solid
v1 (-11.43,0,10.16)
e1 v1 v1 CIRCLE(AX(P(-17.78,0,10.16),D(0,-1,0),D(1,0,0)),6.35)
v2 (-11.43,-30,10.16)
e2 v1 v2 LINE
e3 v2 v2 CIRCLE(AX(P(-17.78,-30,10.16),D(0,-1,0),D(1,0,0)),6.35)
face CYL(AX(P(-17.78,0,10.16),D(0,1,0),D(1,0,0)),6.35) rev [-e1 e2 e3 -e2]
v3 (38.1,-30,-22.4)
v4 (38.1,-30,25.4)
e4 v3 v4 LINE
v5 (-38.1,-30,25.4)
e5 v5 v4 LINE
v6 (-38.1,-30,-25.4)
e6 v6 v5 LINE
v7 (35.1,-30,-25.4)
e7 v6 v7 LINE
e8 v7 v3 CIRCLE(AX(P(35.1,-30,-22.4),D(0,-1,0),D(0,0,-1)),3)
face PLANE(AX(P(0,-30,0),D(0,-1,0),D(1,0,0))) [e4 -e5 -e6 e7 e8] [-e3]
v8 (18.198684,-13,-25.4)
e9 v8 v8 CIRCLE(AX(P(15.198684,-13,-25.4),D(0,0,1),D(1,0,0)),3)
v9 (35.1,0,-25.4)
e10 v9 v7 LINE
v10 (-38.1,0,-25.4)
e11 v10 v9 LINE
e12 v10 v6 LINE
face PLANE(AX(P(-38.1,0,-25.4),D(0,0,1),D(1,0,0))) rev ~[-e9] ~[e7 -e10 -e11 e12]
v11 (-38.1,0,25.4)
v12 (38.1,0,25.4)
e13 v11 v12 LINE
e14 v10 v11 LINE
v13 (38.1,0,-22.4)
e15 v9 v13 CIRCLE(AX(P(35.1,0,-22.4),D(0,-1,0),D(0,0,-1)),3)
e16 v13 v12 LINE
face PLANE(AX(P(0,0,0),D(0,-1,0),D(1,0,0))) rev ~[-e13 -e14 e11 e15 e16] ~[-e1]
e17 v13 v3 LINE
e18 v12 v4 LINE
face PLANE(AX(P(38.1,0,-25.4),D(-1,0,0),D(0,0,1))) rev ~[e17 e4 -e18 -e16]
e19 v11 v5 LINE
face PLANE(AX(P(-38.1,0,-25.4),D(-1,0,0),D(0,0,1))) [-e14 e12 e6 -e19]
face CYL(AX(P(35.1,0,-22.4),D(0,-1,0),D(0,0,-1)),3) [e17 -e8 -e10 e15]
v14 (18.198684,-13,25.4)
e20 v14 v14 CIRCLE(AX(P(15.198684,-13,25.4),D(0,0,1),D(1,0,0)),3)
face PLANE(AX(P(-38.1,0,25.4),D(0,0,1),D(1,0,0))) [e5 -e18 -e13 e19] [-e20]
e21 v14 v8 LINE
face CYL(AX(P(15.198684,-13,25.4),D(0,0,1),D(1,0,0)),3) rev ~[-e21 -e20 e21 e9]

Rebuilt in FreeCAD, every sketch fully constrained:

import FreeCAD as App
import Part
import Sketcher
Q = App.Units.Quantity


def edges_at(feature, points):
    """Names of the edges that pass closest to the given points."""
    edges = feature.Shape.Edges
    near = lambda p: min(range(len(edges)), key=lambda i: edges[i].distToShape(Part.Vertex(*p))[0])
    return sorted({f"Edge{near(p) + 1}" for p in points})


def add_polygon(sketch, points):
    """Adds a closed chain of lines whose ends are joined by coincident constraints."""
    first, n = sketch.GeometryCount, len(points)
    for a, b in zip(points, points[1:] + points[:1]):
        sketch.addGeometry(Part.LineSegment(App.Vector(*a, 0), App.Vector(*b, 0)), False)
    for i in range(n):
        sketch.addConstraint(Sketcher.Constraint("Coincident", first + i, 2, first + (i + 1) % n, 1))

doc = App.newDocument("Part")
body = doc.addObject("PartDesign::Body", "Body")

# Sketch on XZ plane
sketch1 = doc.addObject("Sketcher::SketchObject", "Sketch")
body.addObject(sketch1)
sketch1.AttachmentSupport = (doc.XZ_Plane, [""])
sketch1.MapMode = "FlatFace"
add_polygon(sketch1, [(-38, 25), (-38, -25), (38, -25), (38, 25)])  # lines 0-3
sketch1.addGeometry(Part.Circle(App.Vector(-18, 10, 0), App.Vector(0, 0, 1), 6), False)  # 4
sketch1.addConstraint([
    Sketcher.Constraint("Vertical", 0),
    Sketcher.Constraint("Horizontal", 1),
    Sketcher.Constraint("Vertical", 2),
    Sketcher.Constraint("Horizontal", 3),
    Sketcher.Constraint("Symmetric", 0, 2, 2, 2, -1, 1),
    Sketcher.Constraint("Diameter", 4, Q("12.7 mm")),
    Sketcher.Constraint("DistanceX", 1, 1, 1, 2, Q("76.2 mm")),
    Sketcher.Constraint("DistanceY", 0, 2, 0, 1, Q("50.8 mm")),
    Sketcher.Constraint("DistanceX", 4, 3, -1, 1, Q("17.78 mm")),
    Sketcher.Constraint("DistanceY", -1, 1, 4, 3, Q("10.16 mm")),
])
pad1 = doc.addObject("PartDesign::Pad", "Pad")
body.addObject(pad1)
pad1.Profile = sketch1
pad1.Length = 30

# Sketch on XY plane
sketch2 = doc.addObject("Sketcher::SketchObject", "Sketch001")
body.addObject(sketch2)
sketch2.AttachmentSupport = (doc.XY_Plane, [""])
sketch2.MapMode = "FlatFace"
sketch2.AttachmentOffset = App.Placement(App.Vector(0, 0, 25.4), App.Rotation())
sketch2.addGeometry(Part.Circle(App.Vector(15.2, -13, 0), App.Vector(0, 0, 1), 3), False)
sketch2.addConstraint([
    Sketcher.Constraint("Diameter", 0, Q("6 mm")),
    Sketcher.Constraint("DistanceY", 0, 3, -1, 1, Q("13 mm")),
    Sketcher.Constraint("DistanceX", -1, 1, 0, 3, Q("15.198684 mm")),
])
pocket1 = doc.addObject("PartDesign::Pocket", "Pocket")
body.addObject(pocket1)
pocket1.Profile = sketch2
pocket1.Type = "ThroughAll"
doc.recompute()

fillet = doc.addObject("PartDesign::Fillet", "Fillet")
body.addObject(fillet)
fillet.Base = (pocket1, edges_at(pocket1, [(38.1, -15, -25.4)]))
fillet.Radius = 3

doc.recompute()
